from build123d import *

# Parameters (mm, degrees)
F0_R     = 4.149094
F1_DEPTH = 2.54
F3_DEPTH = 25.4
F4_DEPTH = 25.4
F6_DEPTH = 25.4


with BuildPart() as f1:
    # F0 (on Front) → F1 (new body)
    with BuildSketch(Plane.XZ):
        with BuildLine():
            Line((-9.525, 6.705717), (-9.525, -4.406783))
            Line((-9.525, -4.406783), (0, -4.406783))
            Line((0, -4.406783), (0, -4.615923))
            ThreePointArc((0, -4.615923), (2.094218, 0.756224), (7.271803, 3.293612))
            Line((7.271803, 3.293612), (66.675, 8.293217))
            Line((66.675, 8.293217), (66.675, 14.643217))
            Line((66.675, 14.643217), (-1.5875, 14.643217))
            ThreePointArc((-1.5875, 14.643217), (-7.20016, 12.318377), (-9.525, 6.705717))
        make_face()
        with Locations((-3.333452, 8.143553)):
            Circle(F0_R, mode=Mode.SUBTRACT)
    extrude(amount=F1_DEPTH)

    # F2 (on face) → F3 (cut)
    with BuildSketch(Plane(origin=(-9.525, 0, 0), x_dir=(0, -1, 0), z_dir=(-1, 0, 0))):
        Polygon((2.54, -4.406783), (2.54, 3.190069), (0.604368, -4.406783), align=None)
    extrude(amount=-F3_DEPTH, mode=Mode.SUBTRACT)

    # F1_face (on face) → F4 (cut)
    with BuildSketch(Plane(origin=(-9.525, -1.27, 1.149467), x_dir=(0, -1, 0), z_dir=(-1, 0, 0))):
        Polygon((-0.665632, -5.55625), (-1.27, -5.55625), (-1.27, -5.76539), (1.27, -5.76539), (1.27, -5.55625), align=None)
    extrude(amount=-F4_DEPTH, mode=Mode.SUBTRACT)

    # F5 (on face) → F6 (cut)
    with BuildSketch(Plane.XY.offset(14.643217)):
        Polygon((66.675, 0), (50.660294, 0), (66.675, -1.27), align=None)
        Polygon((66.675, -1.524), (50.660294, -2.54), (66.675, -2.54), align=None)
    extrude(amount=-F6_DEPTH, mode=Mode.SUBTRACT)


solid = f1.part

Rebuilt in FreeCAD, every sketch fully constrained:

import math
import FreeCAD as App
import Part
import Sketcher

V = App.Vector
Q = App.Units.Quantity


def add_polygon(sketch, points):
    """Adds a closed chain of lines whose ends are joined by coincident constraints."""
    first, n = sketch.GeometryCount, len(points)
    for a, b in zip(points, points[1:] + points[:1]):
        sketch.addGeometry(Part.LineSegment(App.Vector(*a, 0), App.Vector(*b, 0)), False)
    for i in range(n):
        sketch.addConstraint(Sketcher.Constraint("Coincident", first + i, 2, first + (i + 1) % n, 1))

doc = App.newDocument("Part")
params = doc.addObject("Spreadsheet::Sheet", "Params")
for row, (alias, value) in enumerate([
    ("sketch1_radius", "0.3124999 in"),
    ("sketch1_height", "0.25 in"),
    ("sketch1_width", "0.375 in"),
    ("sketch1_width2", "2.6875 in"),
    ("pad1_length", "0.1 in"),
    ("pocket1_length", "1 in"),
    ("sketch3_width", "0.1 in"),
    ("pocket2_length", "1 in"),
    ("sketch4_height", "0.05 in"),
    ("sketch4_height2", "0.04 in"),
    ("pocket3_length", "1 in"),
], start=1):
    params.set(f"A{row}", alias)
    params.set(f"B{row}", "=" + value)
    params.setAlias(f"B{row}", alias)

body = doc.addObject("PartDesign::Body", "Body")

sketch1 = doc.addObject("Sketcher::SketchObject", "Sketch")
body.addObject(sketch1)
sketch1.AttachmentSupport = (doc.XZ_Plane, [""])
sketch1.MapMode = "FlatFace"
sketch1.addGeometry(Part.LineSegment(V(-9.53, 6.71, 0), V(-9.53, -4.41, 0)), False)
sketch1.addGeometry(Part.LineSegment(V(-9.53, -4.41, 0), V(0, -4.41, 0)), False)
sketch1.addGeometry(Part.LineSegment(V(0, -4.41, 0), V(0, -4.62, 0)), False)
sketch1.addGeometry(Part.ArcOfCircle(Part.Circle(V(7.94, -4.62, 0), V(0, 0, 1), 7.94), math.radians(95), math.radians(180)), False)
sketch1.addGeometry(Part.LineSegment(V(7.27, 3.29, 0), V(66.67, 8.29, 0)), False)
sketch1.addGeometry(Part.LineSegment(V(66.67, 8.29, 0), V(66.67, 14.64, 0)), False)
sketch1.addGeometry(Part.LineSegment(V(66.67, 14.64, 0), V(-1.59, 14.64, 0)), False)
sketch1.addGeometry(Part.ArcOfCircle(Part.Circle(V(-1.59, 6.71, 0), V(0, 0, 1), 7.94), math.radians(90), math.radians(180)), False)
sketch1.addGeometry(Part.Circle(V(-3.33, 8.14, 0), V(0, 0, 1), 4.15), False)
sketch1.addConstraint(Sketcher.Constraint("Coincident", 0, 2, 1, 1))
sketch1.addConstraint(Sketcher.Constraint("Coincident", 1, 2, 2, 1))
sketch1.addConstraint(Sketcher.Constraint("Tangent", 2, 2, 3, 2))
sketch1.addConstraint(Sketcher.Constraint("Tangent", 3, 1, 4, 1))
sketch1.addConstraint(Sketcher.Constraint("Coincident", 4, 2, 5, 1))
sketch1.addConstraint(Sketcher.Constraint("Coincident", 5, 2, 6, 1))
sketch1.addConstraint(Sketcher.Constraint("Tangent", 6, 2, 7, 1))
sketch1.addConstraint(Sketcher.Constraint("Tangent", 7, 2, 0, 1))
sketch1.addConstraint(Sketcher.Constraint("Vertical", 0))
sketch1.addConstraint(Sketcher.Constraint("Horizontal", 1))
sketch1.addConstraint(Sketcher.Constraint("Vertical", 2))
sketch1.addConstraint(Sketcher.Constraint("Vertical", 5))
sketch1.addConstraint(Sketcher.Constraint("Horizontal", 6))
sketch1.addConstraint(Sketcher.Constraint("Equal", 3, 7))
sketch1.addConstraint(Sketcher.Constraint("PointOnObject", 1, 2, -2))
sketch1.addConstraint(Sketcher.Constraint("Radius", 3, Q("0.3124999 in")))
sketch1.addConstraint(Sketcher.Constraint("DistanceY", 5, 1, 5, 2, Q("0.25 in")))
sketch1.addConstraint(Sketcher.Constraint("DistanceY", 1, 2, 4, 2, Q("0.5 in")))
sketch1.addConstraint(Sketcher.Constraint("DistanceX", 1, 1, 1, 2, Q("0.375 in")))
sketch1.addConstraint(Sketcher.Constraint("DistanceX", 6, 2, 6, 1, Q("2.6875 in")))
sketch1.addConstraint(Sketcher.Constraint("Diameter", 8, 8.298188))
sketch1.addConstraint(Sketcher.Constraint("DistanceY", 2, 2, 2, 1, 0.20914))
sketch1.addConstraint(Sketcher.Constraint("DistanceX", 8, 3, -1, 1, 3.333452))
sketch1.addConstraint(Sketcher.Constraint("DistanceY", 3, 1, 8, 3, 4.849941))
sketch1.addConstraint(Sketcher.Constraint("DistanceY", 3, 3, -1, 1, 4.615922))
sketch1.setExpression("Constraints[15]", "Params.sketch1_radius")
sketch1.setExpression("Constraints[16]", "Params.sketch1_height")
sketch1.setExpression("Constraints[18]", "Params.sketch1_width")
sketch1.setExpression("Constraints[19]", "Params.sketch1_width2")
pad1 = doc.addObject("PartDesign::Pad", "Pad")
body.addObject(pad1)
pad1.Profile = sketch1
pad1.setExpression("Length", "Params.pad1_length")

sketch2 = doc.addObject("Sketcher::SketchObject", "Sketch001")
body.addObject(sketch2)
sketch2.AttachmentSupport = (doc.YZ_Plane, [""])
sketch2.MapMode = "FlatFace"
sketch2.AttachmentOffset = App.Placement(V(0, 0, -0.375 * 25.4), App.Rotation())
add_polygon(sketch2, [(-2.5, -4.4), (-2.5, 3.2), (-0.6, -4.4)])
sketch2.addConstraint(Sketcher.Constraint("Vertical", 0))
sketch2.addConstraint(Sketcher.Constraint("Horizontal", 2))
sketch2.addConstraint(Sketcher.Constraint("DistanceX", 0, 2, -1, 1, Q("0.1 in")))
sketch2.addConstraint(Sketcher.Constraint("Distance", 1, 7.839568))
sketch2.addConstraint(Sketcher.Constraint("DistanceX", 2, 2, 2, 1, 1.935632))
sketch2.addConstraint(Sketcher.Constraint("DistanceY", -1, 1, 0, 2, 3.190069))
pocket1 = doc.addObject("PartDesign::Pocket", "Pocket")
body.addObject(pocket1)
pocket1.Profile = sketch2
pocket1.setExpression("Length", "Params.pocket1_length")
pocket1.Reversed = True

sketch3 = doc.addObject("Sketcher::SketchObject", "Sketch002")
body.addObject(sketch3)
sketch3.AttachmentSupport = (doc.YZ_Plane, [""])
sketch3.MapMode = "FlatFace"
sketch3.AttachmentOffset = App.Placement(V(0, 0, -0.375 * 25.4), App.Rotation())
add_polygon(sketch3, [(0, -4.41), (0, -4.62), (-2.54, -4.62), (-2.54, -4.41)])
sketch3.addConstraint(Sketcher.Constraint("Vertical", 0))
sketch3.addConstraint(Sketcher.Constraint("Horizontal", 1))
sketch3.addConstraint(Sketcher.Constraint("Vertical", 2))
sketch3.addConstraint(Sketcher.Constraint("Horizontal", 3))
sketch3.addConstraint(Sketcher.Constraint("PointOnObject", 0, 2, -2))
sketch3.addConstraint(Sketcher.Constraint("DistanceX", 1, 2, 1, 1, Q("0.1 in")))
sketch3.addConstraint(Sketcher.Constraint("DistanceY", 0, 2, 0, 1, 0.20914))
sketch3.addConstraint(Sketcher.Constraint("DistanceY", 0, 2, -1, 1, 4.615923))
sketch3.setExpression("Constraints[9]", "Params.sketch3_width")
pocket2 = doc.addObject("PartDesign::Pocket", "Pocket001")
body.addObject(pocket2)
pocket2.Profile = sketch3
pocket2.setExpression("Length", "Params.pocket2_length")
pocket2.Reversed = True

sketch4 = doc.addObject("Sketcher::SketchObject", "Sketch003")
body.addObject(sketch4)
sketch4.AttachmentSupport = (doc.XY_Plane, [""])
sketch4.MapMode = "FlatFace"
sketch4.AttachmentOffset = App.Placement(V(0, 0, 14.643217), App.Rotation())
add_polygon(sketch4, [(66.7, 0), (50.7, 0), (66.7, -1.3)])
add_polygon(sketch4, [(66.7, -1.5), (50.7, -2.5), (66.7, -2.5)])
sketch4.addConstraint(Sketcher.Constraint("Horizontal", 0))
sketch4.addConstraint(Sketcher.Constraint("Vertical", 2))
sketch4.addConstraint(Sketcher.Constraint("Horizontal", 4))
sketch4.addConstraint(Sketcher.Constraint("Vertical", 5))
sketch4.addConstraint(Sketcher.Constraint("PointOnObject", 0, 2, -1))
sketch4.addConstraint(Sketcher.Constraint("Vertical", 0, 2, 3, 2))
sketch4.addConstraint(Sketcher.Constraint("Vertical", 2, 2, 4, 2))
sketch4.addConstraint(Sketcher.Constraint("DistanceY", 2, 1, 2, 2, Q("0.05 in")))
sketch4.addConstraint(Sketcher.Constraint("DistanceY", 5, 1, 5, 2, Q("0.04 in")))
sketch4.addConstraint(Sketcher.Constraint("DistanceY", 3, 2, -1, 1, Q("0.1 in")))
sketch4.addConstraint(Sketcher.Constraint("DistanceX", -1, 1, 1, 2, Q("2.625 in")))
sketch4.addConstraint(Sketcher.Constraint("DistanceX", 0, 2, 0, 1, 16.014706))
sketch4.setExpression("Constraints[13]", "Params.sketch4_height")
sketch4.setExpression("Constraints[14]", "Params.sketch4_height2")
pocket3 = doc.addObject("PartDesign::Pocket", "Pocket002")
body.addObject(pocket3)
pocket3.Profile = sketch4
pocket3.setExpression("Length", "Params.pocket3_length")

doc.recompute()
